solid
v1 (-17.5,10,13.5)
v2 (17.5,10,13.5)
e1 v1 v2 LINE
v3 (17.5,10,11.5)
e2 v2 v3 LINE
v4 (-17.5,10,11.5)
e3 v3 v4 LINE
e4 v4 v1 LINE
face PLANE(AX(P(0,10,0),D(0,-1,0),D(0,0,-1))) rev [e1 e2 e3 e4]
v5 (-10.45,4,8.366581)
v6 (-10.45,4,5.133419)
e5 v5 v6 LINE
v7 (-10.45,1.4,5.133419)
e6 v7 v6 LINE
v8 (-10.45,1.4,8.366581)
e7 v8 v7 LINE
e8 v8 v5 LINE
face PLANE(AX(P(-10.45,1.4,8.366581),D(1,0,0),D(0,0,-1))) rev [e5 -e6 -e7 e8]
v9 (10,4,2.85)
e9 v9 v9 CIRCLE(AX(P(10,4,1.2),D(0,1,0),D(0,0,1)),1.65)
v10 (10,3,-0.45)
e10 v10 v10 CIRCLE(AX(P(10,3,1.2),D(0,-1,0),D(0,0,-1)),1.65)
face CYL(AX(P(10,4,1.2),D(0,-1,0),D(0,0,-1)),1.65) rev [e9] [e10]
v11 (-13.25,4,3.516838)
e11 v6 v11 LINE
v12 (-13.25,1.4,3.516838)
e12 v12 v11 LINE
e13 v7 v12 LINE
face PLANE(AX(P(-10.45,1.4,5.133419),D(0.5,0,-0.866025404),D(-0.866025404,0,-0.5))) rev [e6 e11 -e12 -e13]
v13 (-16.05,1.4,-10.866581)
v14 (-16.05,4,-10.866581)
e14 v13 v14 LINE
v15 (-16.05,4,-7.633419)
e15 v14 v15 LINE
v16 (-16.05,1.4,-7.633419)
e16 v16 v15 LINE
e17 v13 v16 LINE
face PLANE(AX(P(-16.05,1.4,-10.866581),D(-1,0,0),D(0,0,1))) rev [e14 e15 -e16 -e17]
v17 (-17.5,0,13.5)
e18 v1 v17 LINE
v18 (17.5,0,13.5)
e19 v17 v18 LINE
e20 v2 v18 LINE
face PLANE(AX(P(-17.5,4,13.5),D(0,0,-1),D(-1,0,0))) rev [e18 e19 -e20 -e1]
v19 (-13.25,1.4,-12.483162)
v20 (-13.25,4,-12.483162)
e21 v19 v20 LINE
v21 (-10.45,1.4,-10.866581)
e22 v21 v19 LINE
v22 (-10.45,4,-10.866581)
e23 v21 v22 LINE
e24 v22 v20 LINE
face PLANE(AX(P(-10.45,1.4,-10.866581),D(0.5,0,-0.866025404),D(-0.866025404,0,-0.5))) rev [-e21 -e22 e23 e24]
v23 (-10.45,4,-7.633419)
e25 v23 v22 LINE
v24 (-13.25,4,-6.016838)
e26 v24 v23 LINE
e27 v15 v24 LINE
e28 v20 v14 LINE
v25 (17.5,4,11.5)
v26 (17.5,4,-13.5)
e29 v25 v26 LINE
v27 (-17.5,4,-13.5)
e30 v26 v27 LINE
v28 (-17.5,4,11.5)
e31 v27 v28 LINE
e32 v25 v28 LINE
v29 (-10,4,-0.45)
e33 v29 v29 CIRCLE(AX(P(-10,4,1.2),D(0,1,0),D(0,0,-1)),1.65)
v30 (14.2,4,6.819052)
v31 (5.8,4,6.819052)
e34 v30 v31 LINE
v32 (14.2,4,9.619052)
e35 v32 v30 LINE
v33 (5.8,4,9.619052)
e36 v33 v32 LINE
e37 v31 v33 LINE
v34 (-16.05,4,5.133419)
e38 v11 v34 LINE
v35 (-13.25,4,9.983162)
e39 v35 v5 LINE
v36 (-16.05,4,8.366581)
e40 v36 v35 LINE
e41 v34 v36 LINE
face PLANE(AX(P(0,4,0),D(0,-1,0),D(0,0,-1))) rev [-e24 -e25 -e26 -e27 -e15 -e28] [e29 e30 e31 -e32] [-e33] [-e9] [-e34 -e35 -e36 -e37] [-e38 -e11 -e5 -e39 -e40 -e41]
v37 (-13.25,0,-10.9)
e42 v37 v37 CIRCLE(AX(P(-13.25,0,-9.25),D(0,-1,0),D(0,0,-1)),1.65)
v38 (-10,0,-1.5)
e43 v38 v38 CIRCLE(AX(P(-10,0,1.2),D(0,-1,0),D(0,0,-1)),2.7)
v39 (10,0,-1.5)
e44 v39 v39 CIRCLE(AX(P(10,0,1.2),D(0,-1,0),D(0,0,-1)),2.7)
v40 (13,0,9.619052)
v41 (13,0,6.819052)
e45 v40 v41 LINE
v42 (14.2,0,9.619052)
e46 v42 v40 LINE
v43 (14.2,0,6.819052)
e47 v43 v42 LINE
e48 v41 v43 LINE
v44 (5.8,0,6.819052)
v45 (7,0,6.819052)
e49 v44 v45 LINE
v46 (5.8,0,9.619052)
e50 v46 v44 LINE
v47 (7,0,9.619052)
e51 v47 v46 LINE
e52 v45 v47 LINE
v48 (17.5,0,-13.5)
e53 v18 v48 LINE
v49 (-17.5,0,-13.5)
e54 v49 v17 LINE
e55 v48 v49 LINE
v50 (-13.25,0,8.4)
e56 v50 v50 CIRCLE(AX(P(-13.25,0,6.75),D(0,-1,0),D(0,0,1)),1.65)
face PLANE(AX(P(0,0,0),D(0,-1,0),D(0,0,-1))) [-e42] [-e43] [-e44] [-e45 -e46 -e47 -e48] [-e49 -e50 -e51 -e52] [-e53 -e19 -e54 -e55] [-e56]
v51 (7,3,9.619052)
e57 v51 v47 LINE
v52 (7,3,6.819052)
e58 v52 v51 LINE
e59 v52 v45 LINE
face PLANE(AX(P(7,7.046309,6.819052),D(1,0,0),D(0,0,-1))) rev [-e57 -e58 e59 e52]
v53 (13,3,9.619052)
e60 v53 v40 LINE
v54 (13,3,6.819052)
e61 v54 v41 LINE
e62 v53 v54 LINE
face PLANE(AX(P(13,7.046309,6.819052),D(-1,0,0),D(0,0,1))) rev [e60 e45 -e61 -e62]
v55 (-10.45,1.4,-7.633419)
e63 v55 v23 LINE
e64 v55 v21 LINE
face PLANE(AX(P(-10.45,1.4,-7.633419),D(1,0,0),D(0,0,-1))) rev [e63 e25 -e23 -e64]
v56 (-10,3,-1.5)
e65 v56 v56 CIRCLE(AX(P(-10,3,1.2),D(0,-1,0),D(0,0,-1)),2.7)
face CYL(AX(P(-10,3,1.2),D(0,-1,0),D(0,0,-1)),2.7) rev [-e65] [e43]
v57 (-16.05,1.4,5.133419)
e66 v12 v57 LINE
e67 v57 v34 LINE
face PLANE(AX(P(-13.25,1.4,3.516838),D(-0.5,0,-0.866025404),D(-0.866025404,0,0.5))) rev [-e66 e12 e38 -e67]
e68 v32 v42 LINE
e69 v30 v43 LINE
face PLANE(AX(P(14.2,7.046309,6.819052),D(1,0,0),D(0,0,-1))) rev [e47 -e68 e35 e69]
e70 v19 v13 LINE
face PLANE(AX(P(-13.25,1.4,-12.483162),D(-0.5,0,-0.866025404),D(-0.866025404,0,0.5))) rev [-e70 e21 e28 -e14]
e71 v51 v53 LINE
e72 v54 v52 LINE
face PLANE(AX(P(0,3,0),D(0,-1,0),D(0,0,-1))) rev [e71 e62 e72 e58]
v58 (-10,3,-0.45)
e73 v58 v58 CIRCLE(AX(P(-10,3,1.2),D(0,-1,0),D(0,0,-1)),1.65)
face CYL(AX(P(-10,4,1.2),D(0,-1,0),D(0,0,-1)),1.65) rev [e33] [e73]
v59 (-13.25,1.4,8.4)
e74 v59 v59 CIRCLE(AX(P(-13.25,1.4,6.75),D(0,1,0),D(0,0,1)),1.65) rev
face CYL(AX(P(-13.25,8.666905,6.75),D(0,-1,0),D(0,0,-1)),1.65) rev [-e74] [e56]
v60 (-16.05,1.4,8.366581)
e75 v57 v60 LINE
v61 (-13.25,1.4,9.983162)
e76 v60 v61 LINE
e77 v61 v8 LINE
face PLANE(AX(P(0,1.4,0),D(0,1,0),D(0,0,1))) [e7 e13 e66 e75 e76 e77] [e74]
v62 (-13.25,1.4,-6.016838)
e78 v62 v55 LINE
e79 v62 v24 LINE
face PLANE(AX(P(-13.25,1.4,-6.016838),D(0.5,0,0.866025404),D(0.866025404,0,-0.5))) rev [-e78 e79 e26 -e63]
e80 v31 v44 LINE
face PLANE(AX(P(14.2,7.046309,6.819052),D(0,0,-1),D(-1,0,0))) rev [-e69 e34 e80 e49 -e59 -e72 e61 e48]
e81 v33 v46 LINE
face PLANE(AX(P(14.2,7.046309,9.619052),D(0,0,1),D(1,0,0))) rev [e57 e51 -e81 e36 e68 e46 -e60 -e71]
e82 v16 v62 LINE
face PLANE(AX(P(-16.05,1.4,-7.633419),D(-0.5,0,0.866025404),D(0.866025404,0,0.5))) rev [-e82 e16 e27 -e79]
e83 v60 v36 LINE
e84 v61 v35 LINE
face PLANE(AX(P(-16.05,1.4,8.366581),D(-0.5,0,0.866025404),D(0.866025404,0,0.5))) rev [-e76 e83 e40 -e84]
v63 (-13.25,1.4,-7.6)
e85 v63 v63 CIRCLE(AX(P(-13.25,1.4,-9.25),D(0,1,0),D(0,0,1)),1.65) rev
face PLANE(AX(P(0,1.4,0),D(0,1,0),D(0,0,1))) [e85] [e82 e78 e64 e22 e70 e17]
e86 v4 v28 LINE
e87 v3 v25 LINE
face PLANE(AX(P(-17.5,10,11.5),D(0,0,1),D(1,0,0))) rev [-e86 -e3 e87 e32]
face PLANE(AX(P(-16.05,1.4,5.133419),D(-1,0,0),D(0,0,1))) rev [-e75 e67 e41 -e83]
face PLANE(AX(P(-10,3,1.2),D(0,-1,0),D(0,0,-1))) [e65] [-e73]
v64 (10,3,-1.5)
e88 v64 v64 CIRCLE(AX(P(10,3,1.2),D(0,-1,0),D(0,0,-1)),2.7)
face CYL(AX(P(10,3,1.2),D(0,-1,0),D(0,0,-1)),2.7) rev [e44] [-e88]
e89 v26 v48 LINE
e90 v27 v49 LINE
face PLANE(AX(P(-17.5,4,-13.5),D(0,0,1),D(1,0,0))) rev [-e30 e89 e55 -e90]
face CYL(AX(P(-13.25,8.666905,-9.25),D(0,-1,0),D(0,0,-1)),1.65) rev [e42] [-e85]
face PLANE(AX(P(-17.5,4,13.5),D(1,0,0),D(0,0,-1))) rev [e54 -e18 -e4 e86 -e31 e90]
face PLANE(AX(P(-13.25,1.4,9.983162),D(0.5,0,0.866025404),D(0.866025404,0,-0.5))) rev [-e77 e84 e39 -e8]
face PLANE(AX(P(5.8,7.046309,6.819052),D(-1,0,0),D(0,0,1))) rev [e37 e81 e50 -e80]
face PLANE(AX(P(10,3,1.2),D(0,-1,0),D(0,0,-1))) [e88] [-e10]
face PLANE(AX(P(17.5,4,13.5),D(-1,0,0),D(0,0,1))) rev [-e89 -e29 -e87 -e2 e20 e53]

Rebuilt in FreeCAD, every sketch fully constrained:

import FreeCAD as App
import Part
import Sketcher
from FreeCAD import Vector
Q = App.Units.Quantity


def add_polygon(sketch, points):
    """Adds a closed chain of lines whose ends are joined by coincident constraints."""
    first, n = sketch.GeometryCount, len(points)
    for a, b in zip(points, points[1:] + points[:1]):
        sketch.addGeometry(Part.LineSegment(App.Vector(*a, 0), App.Vector(*b, 0)), False)
    for i in range(n):
        sketch.addConstraint(Sketcher.Constraint("Coincident", first + i, 2, first + (i + 1) % n, 1))

doc = App.newDocument("Part")
params = doc.addObject("Spreadsheet::Sheet", "Params")
for row, (alias, value) in enumerate([
    ("sketch1_diameter", "3.3 mm"),
    ("sketch1_width", "35 mm"),
    ("sketch1_height", "27 mm"),
    ("pad1_length", "4 mm"),
    ("sketch2_width", "35 mm"),
    ("sketch2_height", "2 mm"),
    ("pad2_length", "6 mm"),
    ("sketch3_diameter", "3.3 mm"),
    ("pocket1_length", "4 mm"),
    ("pocket2_length", "2.6 mm"),
    ("sketch5_diameter", "5.4 mm"),
    ("pocket3_length", "3 mm"),
    ("sketch6_width", "1.2 mm"),
    ("sketch6_height", "2.8 mm"),
    ("pocket4_length", "4 mm"),
    ("sketch7_width", "6 mm"),
    ("sketch7_height", "2.8 mm"),
    ("pocket5_length", "1 mm"),
], start=1):
    params.set(f"A{row}", alias)
    params.set(f"B{row}", "=" + value)
    params.setAlias(f"B{row}", alias)

body = doc.addObject("PartDesign::Body", "Body")

# Sketch on XZ plane
sketch1 = doc.addObject("Sketcher::SketchObject", "Sketch")
body.addObject(sketch1)
sketch1.AttachmentSupport = (doc.XZ_Plane, [""])
sketch1.MapMode = "FlatFace"
add_polygon(sketch1, [(-17.5, -13.5), (-17.5, 13.5), (17.5, 13.5), (17.5, -13.5)])  # lines 0-3
sketch1.addGeometry(Part.Circle(Vector(10, 1.2, 0), Vector(0, 0, 1), 1.65), False)  # 4
sketch1.addGeometry(Part.Circle(Vector(-10, 1.2, 0), Vector(0, 0, 1), 1.65), False)  # 5
sketch1.addConstraint(Sketcher.Constraint("Vertical", 0))
sketch1.addConstraint(Sketcher.Constraint("Horizontal", 1))
sketch1.addConstraint(Sketcher.Constraint("Vertical", 2))
sketch1.addConstraint(Sketcher.Constraint("Horizontal", 3))
sketch1.addConstraint(Sketcher.Constraint("Equal", 4, 5))
sketch1.addConstraint(Sketcher.Constraint("Symmetric", 0, 2, 2, 2, -1, 1))
sketch1.addConstraint(Sketcher.Constraint("Symmetric", 4, 3, 5, 3, -2))
sketch1.addConstraint(Sketcher.Constraint("Diameter", 4, 3.3))
sketch1.addConstraint(Sketcher.Constraint("DistanceX", 1, 1, 1, 2, 35.0))
sketch1.addConstraint(Sketcher.Constraint("DistanceY", 0, 1, 0, 2, 27.0))
sketch1.addConstraint(Sketcher.Constraint("DistanceX", -1, 1, 4, 3, 10.0))
sketch1.addConstraint(Sketcher.Constraint("DistanceY", -1, 1, 4, 3, 1.2))
sketch1.setExpression("Constraints[11]", "Params.sketch1_diameter")
sketch1.setExpression("Constraints[12]", "Params.sketch1_width")
sketch1.setExpression("Constraints[13]", "Params.sketch1_height")
pad1 = doc.addObject("PartDesign::Pad", "Pad")
body.addObject(pad1)
pad1.Profile = sketch1
pad1.setExpression("Length", "Params.pad1_length")
pad1.Reversed = True

# Sketch on XZ plane
sketch2 = doc.addObject("Sketcher::SketchObject", "Sketch001")
body.addObject(sketch2)
sketch2.AttachmentSupport = (doc.XZ_Plane, [""])
sketch2.MapMode = "FlatFace"
sketch2.AttachmentOffset = App.Placement(Vector(0, 0, -4), App.Rotation())
add_polygon(sketch2, [(-17.5, 11.5), (-17.5, 13.5), (17.5, 13.5), (17.5, 11.5)])  # lines 0-3
sketch2.addConstraint(Sketcher.Constraint("Vertical", 0))
sketch2.addConstraint(Sketcher.Constraint("Horizontal", 1))
sketch2.addConstraint(Sketcher.Constraint("Vertical", 2))
sketch2.addConstraint(Sketcher.Constraint("Horizontal", 3))
sketch2.addConstraint(Sketcher.Constraint("DistanceX", 1, 1, 1, 2, 35.0))
sketch2.addConstraint(Sketcher.Constraint("DistanceY", 0, 1, 0, 2, 2.0))
sketch2.addConstraint(Sketcher.Constraint("DistanceX", 0, 2, -1, 1, 17.5))
sketch2.addConstraint(Sketcher.Constraint("DistanceY", -1, 1, 0, 2, 13.5))
sketch2.setExpression("Constraints[8]", "Params.sketch2_width")
sketch2.setExpression("Constraints[9]", "Params.sketch2_height")
pad2 = doc.addObject("PartDesign::Pad", "Pad001")
body.addObject(pad2)
pad2.Profile = sketch2
pad2.setExpression("Length", "Params.pad2_length")
pad2.Reversed = True

# Sketch on XZ plane
sketch3 = doc.addObject("Sketcher::SketchObject", "Sketch002")
body.addObject(sketch3)
sketch3.AttachmentSupport = (doc.XZ_Plane, [""])
sketch3.MapMode = "FlatFace"
sketch3.addGeometry(Part.Circle(Vector(-13.25, -9.25, 0), Vector(0, 0, 1), 1.65), False)
sketch3.addGeometry(Part.Circle(Vector(-13.25, 6.75, 0), Vector(0, 0, 1), 1.65), False)
sketch3.addConstraint(Sketcher.Constraint("Equal", 0, 1))
sketch3.addConstraint(Sketcher.Constraint("Vertical", 0, 3, 1, 3))
sketch3.addConstraint(Sketcher.Constraint("Diameter", 0, 3.3))
sketch3.addConstraint(Sketcher.Constraint("DistanceY", 0, 3, 1, 3, 16.0))
sketch3.addConstraint(Sketcher.Constraint("DistanceX", 0, 3, -1, 1, 13.25))
sketch3.addConstraint(Sketcher.Constraint("DistanceY", 0, 3, -1, 1, 9.25))
sketch3.setExpression("Constraints[2]", "Params.sketch3_diameter")
pocket1 = doc.addObject("PartDesign::Pocket", "Pocket")
body.addObject(pocket1)
pocket1.Profile = sketch3
pocket1.setExpression("Length", "Params.pocket1_length")

# Sketch on XZ plane
sketch4 = doc.addObject("Sketcher::SketchObject", "Sketch003")
body.addObject(sketch4)
sketch4.AttachmentSupport = (doc.XZ_Plane, [""])
sketch4.MapMode = "FlatFace"
sketch4.AttachmentOffset = App.Placement(Vector(0, 0, -4), App.Rotation())
add_polygon(sketch4, [(-10.45, -7.633419), (-10.45, -10.866581), (-13.25, -12.483162), (-16.05, -10.866581), (-16.05, -7.633419), (-13.25, -6.016838)])  # lines 0-5
add_polygon(sketch4, [(-10.45, 5.133419), (-13.25, 3.516838), (-16.05, 5.133419), (-16.05, 8.366581), (-13.25, 9.983162), (-10.45, 8.366581)])  # lines 6-11
sketch4.addConstraint(Sketcher.Constraint("Vertical", 0))
sketch4.addConstraint(Sketcher.Constraint("Vertical", 3))
sketch4.addConstraint(Sketcher.Constraint("Vertical", 8))
sketch4.addConstraint(Sketcher.Constraint("Vertical", 11))
sketch4.addConstraint(Sketcher.Constraint("Parallel", 1, 4))
sketch4.addConstraint(Sketcher.Constraint("Parallel", 2, 5))
sketch4.addConstraint(Sketcher.Constraint("Parallel", 4, 6))
sketch4.addConstraint(Sketcher.Constraint("Parallel", 5, 7))
sketch4.addConstraint(Sketcher.Constraint("Parallel", 6, 9))
sketch4.addConstraint(Sketcher.Constraint("Parallel", 7, 10))
sketch4.addConstraint(Sketcher.Constraint("Horizontal", 0, 2, 2, 2))
sketch4.addConstraint(Sketcher.Constraint("Horizontal", 3, 2, 5, 2))
sketch4.addConstraint(Sketcher.Constraint("Horizontal", 8, 2, 10, 2))
sketch4.addConstraint(Sketcher.Constraint("Horizontal", 7, 2, 11, 2))
sketch4.addConstraint(Sketcher.Constraint("Vertical", 1, 2, 4, 2))
sketch4.addConstraint(Sketcher.Constraint("Vertical", 4, 2, 6, 2))
sketch4.addConstraint(Sketcher.Constraint("Vertical", 3, 2, 7, 2))
sketch4.addConstraint(Sketcher.Constraint("Equal", 3, 8))
sketch4.addConstraint(Sketcher.Constraint("Angle", 1, Q("-150 deg")))
sketch4.addConstraint(Sketcher.Constraint("DistanceY", 2, 2, 7, 2, 16.0))
sketch4.addConstraint(Sketcher.Constraint("DistanceX", 1, 2, 0, 2, 2.8))
sketch4.addConstraint(Sketcher.Constraint("DistanceX", 0, 2, -1, 1, 10.45))
sketch4.addConstraint(Sketcher.Constraint("DistanceY", 0, 2, 0, 1, 3.233162))
sketch4.addConstraint(Sketcher.Constraint("DistanceY", 0, 2, -1, 1, 10.866581))
pocket2 = doc.addObject("PartDesign::Pocket", "Pocket001")
body.addObject(pocket2)
pocket2.Profile = sketch4
pocket2.setExpression("Length", "Params.pocket2_length")
pocket2.Reversed = True

# Sketch on XZ plane
sketch5 = doc.addObject("Sketcher::SketchObject", "Sketch004")
body.addObject(sketch5)
sketch5.AttachmentSupport = (doc.XZ_Plane, [""])
sketch5.MapMode = "FlatFace"
sketch5.addGeometry(Part.Circle(Vector(-10, 1.2, 0), Vector(0, 0, 1), 2.7), False)
sketch5.addGeometry(Part.Circle(Vector(10, 1.2, 0), Vector(0, 0, 1), 2.7), False)
sketch5.addConstraint(Sketcher.Constraint("Equal", 0, 1))
sketch5.addConstraint(Sketcher.Constraint("Symmetric", 0, 3, 1, 3, -2))
sketch5.addConstraint(Sketcher.Constraint("Diameter", 0, 5.4))
sketch5.addConstraint(Sketcher.Constraint("DistanceX", 0, 3, -1, 1, 10.0))
sketch5.addConstraint(Sketcher.Constraint("DistanceY", -1, 1, 0, 3, 1.2))
sketch5.setExpression("Constraints[2]", "Params.sketch5_diameter")
pocket3 = doc.addObject("PartDesign::Pocket", "Pocket002")
body.addObject(pocket3)
pocket3.Profile = sketch5
pocket3.setExpression("Length", "Params.pocket3_length")

# Sketch on XZ plane
sketch6 = doc.addObject("Sketcher::SketchObject", "Sketch005")
body.addObject(sketch6)
sketch6.AttachmentSupport = (doc.XZ_Plane, [""])
sketch6.MapMode = "FlatFace"
add_polygon(sketch6, [(5.8, 9.619052), (5.8, 6.819052), (7, 6.819052), (7, 9.619052)])  # lines 0-3
add_polygon(sketch6, [(13, 9.619052), (13, 6.819052), (14.2, 6.819052), (14.2, 9.619052)])  # lines 4-7
sketch6.addConstraint(Sketcher.Constraint("Vertical", 0))
sketch6.addConstraint(Sketcher.Constraint("Horizontal", 1))
sketch6.addConstraint(Sketcher.Constraint("Vertical", 2))
sketch6.addConstraint(Sketcher.Constraint("Horizontal", 3))
sketch6.addConstraint(Sketcher.Constraint("Vertical", 4))
sketch6.addConstraint(Sketcher.Constraint("Horizontal", 5))
sketch6.addConstraint(Sketcher.Constraint("Vertical", 6))
sketch6.addConstraint(Sketcher.Constraint("Horizontal", 7))
sketch6.addConstraint(Sketcher.Constraint("Horizontal", 1, 2, 4, 2))
sketch6.addConstraint(Sketcher.Constraint("Horizontal", 3, 2, 6, 2))
sketch6.addConstraint(Sketcher.Constraint("Equal", 3, 5))
sketch6.addConstraint(Sketcher.Constraint("DistanceX", 1, 1, 1, 2, 1.2))
sketch6.addConstraint(Sketcher.Constraint("DistanceY", 0, 2, 0, 1, 2.8))
sketch6.addConstraint(Sketcher.Constraint("DistanceX", -1, 1, 1, 2, 7.0))
sketch6.addConstraint(Sketcher.Constraint("DistanceX", -1, 1, 4, 2, 13.0))
sketch6.addConstraint(Sketcher.Constraint("DistanceY", -1, 1, 0, 2, 6.819052))
sketch6.setExpression("Constraints[19]", "Params.sketch6_width")
sketch6.setExpression("Constraints[20]", "Params.sketch6_height")
pocket4 = doc.addObject("PartDesign::Pocket", "Pocket003")
body.addObject(pocket4)
pocket4.Profile = sketch6
pocket4.setExpression("Length", "Params.pocket4_length")

# Sketch on XZ plane
sketch7 = doc.addObject("Sketcher::SketchObject", "Sketch006")
body.addObject(sketch7)
sketch7.AttachmentSupport = (doc.XZ_Plane, [""])
sketch7.MapMode = "FlatFace"
sketch7.AttachmentOffset = App.Placement(Vector(0, 0, -4), App.Rotation())
add_polygon(sketch7, [(7, 6.819052), (7, 9.619052), (13, 9.619052), (13, 6.819052)])  # lines 0-3
sketch7.addConstraint(Sketcher.Constraint("Vertical", 0))
sketch7.addConstraint(Sketcher.Constraint("Horizontal", 1))
sketch7.addConstraint(Sketcher.Constraint("Vertical", 2))
sketch7.addConstraint(Sketcher.Constraint("Horizontal", 3))
sketch7.addConstraint(Sketcher.Constraint("DistanceX", 1, 1, 1, 2, 6.0))
sketch7.addConstraint(Sketcher.Constraint("DistanceY", 0, 1, 0, 2, 2.8))
sketch7.addConstraint(Sketcher.Constraint("DistanceX", -1, 1, 0, 2, 7.0))
sketch7.addConstraint(Sketcher.Constraint("DistanceY", -1, 1, 0, 2, 9.619052))
sketch7.setExpression("Constraints[8]", "Params.sketch7_width")
sketch7.setExpression("Constraints[9]", "Params.sketch7_height")
pocket5 = doc.addObject("PartDesign::Pocket", "Pocket004")
body.addObject(pocket5)
pocket5.Profile = sketch7
pocket5.setExpression("Length", "Params.pocket5_length")
pocket5.Reversed = True

doc.recompute()
